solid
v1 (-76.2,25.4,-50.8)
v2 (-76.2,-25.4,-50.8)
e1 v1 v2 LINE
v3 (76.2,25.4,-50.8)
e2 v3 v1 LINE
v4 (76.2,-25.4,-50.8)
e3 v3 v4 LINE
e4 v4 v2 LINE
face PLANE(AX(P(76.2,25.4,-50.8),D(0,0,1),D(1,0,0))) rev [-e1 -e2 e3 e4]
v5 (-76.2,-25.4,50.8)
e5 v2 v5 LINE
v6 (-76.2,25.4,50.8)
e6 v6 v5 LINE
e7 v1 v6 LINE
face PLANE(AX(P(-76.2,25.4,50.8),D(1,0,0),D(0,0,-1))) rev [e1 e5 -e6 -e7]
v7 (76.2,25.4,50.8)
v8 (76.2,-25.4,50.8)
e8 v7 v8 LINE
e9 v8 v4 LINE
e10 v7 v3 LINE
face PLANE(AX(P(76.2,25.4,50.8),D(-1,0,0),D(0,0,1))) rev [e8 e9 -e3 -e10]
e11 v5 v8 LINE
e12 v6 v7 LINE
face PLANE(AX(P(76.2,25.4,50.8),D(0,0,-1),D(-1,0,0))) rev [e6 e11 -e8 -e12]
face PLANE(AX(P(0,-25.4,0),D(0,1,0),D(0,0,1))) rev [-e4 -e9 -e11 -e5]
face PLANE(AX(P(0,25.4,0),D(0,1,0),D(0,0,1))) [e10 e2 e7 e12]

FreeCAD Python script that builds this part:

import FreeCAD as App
import Part
import Sketcher

V = App.Vector
Q = App.Units.Quantity


def add_polygon(sketch, points):
    """Adds a closed chain of lines whose ends are joined by coincident constraints."""
    first, n = sketch.GeometryCount, len(points)
    for a, b in zip(points, points[1:] + points[:1]):
        sketch.addGeometry(Part.LineSegment(App.Vector(*a, 0), App.Vector(*b, 0)), False)
    for i in range(n):
        sketch.addConstraint(Sketcher.Constraint("Coincident", first + i, 2, first + (i + 1) % n, 1))

doc = App.newDocument("Part")
body = doc.addObject("PartDesign::Body", "Body")

# Sketch on XZ plane
sketch1 = body.newObject("Sketcher::SketchObject", "Sketch")
sketch1.AttachmentSupport = (doc.getObject("XZ_Plane"), [""])
sketch1.MapMode = "FlatFace"
add_polygon(sketch1, [(-76, -51), (-76, 51), (76, 51), (76, -51)])  # lines 0-3
sketch1.addConstraint([
    Sketcher.Constraint("Vertical", 0),
    Sketcher.Constraint("Horizontal", 1),
    Sketcher.Constraint("Vertical", 2),
    Sketcher.Constraint("Horizontal", 3),
    Sketcher.Constraint("Symmetric", 0, 2, 2, 2, -1, 1),
    Sketcher.Constraint("DistanceX", 1, 1, 1, 2, Q("6 in")),
    Sketcher.Constraint("DistanceY", 0, 1, 0, 2, Q("4 in")),
])
pad1 = body.newObject("PartDesign::Pad", "Pad")
pad1.Profile = sketch1
pad1.Length = Q("2 in")
pad1.Midplane = True

doc.recompute()
